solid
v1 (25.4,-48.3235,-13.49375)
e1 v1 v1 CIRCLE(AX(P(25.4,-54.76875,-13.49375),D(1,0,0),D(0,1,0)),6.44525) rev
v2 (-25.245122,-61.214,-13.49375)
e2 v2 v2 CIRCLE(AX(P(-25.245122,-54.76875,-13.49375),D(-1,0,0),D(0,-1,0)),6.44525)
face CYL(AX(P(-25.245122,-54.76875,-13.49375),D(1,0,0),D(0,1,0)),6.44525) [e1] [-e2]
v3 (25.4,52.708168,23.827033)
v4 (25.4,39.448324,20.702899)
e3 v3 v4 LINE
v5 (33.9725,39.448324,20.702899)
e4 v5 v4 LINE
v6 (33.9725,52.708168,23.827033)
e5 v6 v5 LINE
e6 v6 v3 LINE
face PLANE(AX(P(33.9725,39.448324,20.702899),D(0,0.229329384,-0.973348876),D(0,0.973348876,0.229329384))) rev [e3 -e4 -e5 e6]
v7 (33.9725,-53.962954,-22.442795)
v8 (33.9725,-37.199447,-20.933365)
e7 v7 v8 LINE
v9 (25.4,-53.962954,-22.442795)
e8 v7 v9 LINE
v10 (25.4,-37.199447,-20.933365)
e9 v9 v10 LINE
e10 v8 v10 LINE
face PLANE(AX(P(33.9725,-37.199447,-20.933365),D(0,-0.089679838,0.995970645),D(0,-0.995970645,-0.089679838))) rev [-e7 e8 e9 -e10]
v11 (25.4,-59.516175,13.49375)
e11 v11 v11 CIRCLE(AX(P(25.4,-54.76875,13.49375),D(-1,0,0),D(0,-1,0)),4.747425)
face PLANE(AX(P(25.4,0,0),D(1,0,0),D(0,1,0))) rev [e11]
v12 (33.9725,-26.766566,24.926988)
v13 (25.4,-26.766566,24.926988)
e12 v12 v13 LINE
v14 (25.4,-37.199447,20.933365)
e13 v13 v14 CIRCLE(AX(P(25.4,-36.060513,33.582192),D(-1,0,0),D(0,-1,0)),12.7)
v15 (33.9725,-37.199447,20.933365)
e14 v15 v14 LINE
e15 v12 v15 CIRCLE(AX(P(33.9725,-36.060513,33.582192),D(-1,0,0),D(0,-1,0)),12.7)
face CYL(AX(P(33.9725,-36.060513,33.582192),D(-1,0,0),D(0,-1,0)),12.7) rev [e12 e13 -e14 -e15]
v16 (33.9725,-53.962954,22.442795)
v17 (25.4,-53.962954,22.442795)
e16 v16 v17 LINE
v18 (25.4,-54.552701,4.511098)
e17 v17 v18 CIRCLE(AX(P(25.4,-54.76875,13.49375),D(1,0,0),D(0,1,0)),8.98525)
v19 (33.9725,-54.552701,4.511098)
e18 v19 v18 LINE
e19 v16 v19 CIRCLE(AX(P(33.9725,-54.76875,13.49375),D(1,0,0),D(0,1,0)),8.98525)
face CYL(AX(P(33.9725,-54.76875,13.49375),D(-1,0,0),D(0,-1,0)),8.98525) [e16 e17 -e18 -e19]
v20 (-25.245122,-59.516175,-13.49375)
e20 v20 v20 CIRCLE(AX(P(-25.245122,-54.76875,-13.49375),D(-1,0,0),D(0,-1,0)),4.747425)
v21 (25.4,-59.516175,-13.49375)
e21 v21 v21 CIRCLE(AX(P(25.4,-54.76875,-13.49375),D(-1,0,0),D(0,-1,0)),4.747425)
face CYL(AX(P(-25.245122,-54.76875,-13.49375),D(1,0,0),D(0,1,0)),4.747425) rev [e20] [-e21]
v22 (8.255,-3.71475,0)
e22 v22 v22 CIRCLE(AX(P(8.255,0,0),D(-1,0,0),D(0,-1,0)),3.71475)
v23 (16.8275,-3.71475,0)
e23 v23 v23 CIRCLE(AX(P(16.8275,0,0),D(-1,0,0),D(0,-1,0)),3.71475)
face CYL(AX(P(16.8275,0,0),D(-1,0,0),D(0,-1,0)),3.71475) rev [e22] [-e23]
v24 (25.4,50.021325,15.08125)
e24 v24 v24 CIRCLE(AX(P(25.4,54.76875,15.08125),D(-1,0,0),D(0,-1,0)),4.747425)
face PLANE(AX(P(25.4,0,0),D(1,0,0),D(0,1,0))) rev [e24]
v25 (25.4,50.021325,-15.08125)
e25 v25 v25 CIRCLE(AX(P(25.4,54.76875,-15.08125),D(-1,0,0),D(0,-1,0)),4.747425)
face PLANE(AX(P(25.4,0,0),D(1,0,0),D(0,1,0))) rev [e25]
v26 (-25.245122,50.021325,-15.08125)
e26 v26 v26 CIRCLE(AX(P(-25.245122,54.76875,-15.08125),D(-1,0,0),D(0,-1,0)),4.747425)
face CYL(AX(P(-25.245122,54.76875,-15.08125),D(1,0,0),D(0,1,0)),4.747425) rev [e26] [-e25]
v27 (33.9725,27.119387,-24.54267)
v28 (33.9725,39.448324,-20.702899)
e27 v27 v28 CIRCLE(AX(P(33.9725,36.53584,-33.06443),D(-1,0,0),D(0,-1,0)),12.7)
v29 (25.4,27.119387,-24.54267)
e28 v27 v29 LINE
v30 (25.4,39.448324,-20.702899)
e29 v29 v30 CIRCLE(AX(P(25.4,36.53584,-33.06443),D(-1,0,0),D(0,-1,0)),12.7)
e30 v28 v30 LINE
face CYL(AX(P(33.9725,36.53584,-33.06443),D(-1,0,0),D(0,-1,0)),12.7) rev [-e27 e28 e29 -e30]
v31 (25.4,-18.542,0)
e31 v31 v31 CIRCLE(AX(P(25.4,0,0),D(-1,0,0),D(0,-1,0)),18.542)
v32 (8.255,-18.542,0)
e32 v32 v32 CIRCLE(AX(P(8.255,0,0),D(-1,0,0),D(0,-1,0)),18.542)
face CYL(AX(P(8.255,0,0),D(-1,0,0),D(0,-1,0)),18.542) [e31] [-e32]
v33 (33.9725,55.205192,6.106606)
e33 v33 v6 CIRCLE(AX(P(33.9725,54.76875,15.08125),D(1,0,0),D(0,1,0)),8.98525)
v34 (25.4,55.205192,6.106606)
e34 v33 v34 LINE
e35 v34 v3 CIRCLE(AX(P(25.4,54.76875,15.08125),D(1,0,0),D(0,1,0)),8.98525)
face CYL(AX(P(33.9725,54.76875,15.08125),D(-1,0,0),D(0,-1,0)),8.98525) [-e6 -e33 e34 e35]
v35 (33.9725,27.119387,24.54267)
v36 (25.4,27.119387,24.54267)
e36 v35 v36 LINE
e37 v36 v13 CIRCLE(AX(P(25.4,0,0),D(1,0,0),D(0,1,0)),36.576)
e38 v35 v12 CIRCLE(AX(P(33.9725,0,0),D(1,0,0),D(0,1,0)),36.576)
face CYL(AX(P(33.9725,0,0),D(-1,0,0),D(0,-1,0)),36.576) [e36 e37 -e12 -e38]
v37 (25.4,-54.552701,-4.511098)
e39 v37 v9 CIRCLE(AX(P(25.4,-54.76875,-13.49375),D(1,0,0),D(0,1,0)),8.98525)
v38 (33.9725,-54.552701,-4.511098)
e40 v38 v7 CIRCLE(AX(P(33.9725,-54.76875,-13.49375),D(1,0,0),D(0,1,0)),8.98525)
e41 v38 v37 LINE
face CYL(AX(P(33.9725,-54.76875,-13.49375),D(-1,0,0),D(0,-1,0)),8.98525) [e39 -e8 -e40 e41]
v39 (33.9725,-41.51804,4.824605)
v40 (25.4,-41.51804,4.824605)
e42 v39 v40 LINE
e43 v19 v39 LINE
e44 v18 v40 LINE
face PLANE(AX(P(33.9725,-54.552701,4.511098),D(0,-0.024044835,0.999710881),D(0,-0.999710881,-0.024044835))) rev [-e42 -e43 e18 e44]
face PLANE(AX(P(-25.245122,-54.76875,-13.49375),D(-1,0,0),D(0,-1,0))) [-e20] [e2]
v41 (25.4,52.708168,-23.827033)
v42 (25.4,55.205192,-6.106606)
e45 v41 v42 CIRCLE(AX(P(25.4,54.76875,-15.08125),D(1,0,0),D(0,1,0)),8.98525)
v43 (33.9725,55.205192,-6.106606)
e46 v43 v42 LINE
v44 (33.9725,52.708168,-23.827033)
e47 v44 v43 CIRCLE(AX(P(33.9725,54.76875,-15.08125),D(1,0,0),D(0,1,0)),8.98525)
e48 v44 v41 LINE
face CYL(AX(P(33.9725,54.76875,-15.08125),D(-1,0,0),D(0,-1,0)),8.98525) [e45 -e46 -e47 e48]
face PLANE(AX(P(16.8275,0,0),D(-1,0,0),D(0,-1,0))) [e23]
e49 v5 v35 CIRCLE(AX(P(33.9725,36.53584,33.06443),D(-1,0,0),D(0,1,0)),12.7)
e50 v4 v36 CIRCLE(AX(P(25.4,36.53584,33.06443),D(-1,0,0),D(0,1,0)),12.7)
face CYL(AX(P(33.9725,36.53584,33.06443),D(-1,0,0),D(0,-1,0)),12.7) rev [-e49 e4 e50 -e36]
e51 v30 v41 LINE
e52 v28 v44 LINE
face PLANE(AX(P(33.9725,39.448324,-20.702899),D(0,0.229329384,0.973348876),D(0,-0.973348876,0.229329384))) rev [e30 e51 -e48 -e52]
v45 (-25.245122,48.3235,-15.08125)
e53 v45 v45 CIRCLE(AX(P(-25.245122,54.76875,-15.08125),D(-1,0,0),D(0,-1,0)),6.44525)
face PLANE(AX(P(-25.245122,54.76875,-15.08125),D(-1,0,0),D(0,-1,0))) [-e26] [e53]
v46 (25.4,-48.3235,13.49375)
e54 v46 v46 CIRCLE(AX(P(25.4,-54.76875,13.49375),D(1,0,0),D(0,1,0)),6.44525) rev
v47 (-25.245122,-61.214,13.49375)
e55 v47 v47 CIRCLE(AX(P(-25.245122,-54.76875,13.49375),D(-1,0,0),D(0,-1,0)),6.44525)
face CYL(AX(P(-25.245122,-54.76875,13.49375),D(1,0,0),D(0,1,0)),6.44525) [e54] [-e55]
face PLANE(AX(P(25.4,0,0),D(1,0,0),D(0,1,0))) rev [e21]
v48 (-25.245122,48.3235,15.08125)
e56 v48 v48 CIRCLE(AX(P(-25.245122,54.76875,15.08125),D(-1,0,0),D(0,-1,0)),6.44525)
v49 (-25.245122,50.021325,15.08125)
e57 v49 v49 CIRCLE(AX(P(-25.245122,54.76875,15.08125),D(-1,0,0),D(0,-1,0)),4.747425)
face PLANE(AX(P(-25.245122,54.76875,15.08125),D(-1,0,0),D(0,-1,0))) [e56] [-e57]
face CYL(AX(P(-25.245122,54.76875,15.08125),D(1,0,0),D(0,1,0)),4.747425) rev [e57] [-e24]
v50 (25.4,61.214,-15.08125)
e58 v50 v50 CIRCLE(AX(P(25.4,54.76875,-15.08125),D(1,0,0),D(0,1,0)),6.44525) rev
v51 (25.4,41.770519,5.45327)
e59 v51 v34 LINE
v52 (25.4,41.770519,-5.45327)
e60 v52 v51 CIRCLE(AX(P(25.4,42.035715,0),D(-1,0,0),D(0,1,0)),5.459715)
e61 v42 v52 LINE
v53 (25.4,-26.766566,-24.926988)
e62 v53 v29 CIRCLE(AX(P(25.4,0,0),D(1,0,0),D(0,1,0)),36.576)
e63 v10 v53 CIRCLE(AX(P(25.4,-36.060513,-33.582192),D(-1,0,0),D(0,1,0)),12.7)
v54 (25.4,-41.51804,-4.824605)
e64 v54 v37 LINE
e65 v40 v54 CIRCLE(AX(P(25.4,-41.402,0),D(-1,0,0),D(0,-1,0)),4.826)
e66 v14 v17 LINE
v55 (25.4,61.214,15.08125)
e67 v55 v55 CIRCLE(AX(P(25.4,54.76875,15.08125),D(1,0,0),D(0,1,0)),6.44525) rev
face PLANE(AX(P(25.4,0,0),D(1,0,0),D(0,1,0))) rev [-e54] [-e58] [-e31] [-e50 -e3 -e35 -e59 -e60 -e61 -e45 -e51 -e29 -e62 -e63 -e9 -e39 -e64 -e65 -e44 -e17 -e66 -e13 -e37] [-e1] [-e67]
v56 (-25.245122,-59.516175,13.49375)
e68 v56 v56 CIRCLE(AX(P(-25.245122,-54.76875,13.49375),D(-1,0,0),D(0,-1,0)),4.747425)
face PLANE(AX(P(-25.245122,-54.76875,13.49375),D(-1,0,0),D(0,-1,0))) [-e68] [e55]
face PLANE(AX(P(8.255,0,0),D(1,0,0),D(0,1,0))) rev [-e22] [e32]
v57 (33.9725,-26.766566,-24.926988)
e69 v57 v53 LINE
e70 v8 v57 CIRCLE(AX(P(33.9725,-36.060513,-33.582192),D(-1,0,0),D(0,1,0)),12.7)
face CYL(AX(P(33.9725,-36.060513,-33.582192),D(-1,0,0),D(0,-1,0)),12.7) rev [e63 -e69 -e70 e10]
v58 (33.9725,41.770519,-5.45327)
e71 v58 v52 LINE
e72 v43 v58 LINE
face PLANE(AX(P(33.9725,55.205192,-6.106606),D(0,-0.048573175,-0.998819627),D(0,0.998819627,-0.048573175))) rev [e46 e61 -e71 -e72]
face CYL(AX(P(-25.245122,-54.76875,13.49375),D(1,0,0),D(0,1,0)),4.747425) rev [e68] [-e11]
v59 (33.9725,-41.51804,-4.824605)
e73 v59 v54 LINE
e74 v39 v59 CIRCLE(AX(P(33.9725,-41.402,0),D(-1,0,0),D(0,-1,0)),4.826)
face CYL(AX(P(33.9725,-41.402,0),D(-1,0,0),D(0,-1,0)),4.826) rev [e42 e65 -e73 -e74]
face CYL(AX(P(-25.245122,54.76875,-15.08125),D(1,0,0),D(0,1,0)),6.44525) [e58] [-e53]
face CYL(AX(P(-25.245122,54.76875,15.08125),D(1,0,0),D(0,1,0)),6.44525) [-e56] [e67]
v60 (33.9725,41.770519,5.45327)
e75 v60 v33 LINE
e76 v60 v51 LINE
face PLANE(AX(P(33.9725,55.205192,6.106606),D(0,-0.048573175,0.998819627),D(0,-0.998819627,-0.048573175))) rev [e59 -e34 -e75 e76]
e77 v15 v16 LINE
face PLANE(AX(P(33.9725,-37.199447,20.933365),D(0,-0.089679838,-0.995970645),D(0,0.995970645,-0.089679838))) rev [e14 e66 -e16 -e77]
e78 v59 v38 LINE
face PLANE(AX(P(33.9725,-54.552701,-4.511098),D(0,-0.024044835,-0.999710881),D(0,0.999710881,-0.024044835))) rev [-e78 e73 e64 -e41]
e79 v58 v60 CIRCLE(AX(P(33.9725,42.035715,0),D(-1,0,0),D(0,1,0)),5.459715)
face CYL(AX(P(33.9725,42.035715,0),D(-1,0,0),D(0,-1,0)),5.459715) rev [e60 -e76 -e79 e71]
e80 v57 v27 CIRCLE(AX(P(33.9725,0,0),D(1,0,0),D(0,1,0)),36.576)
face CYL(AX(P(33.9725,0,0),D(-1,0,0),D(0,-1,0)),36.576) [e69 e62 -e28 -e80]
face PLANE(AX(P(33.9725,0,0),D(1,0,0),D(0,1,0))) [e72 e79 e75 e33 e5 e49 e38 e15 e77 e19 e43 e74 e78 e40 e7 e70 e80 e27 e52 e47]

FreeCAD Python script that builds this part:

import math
import FreeCAD as App
import Part
import Sketcher

V = App.Vector
Q = App.Units.Quantity

doc = App.newDocument("Part")
params = doc.addObject("Spreadsheet::Sheet", "Params")
for row, (alias, value) in enumerate([
    ("sketch1_height", "0.73 in"),
    ("sketch1_width", "0.675 in"),
    ("revolution_angle", "360 deg"),
    ("pocket1_length", "0.3375 in"),
    ("sketch3_radius", "0.5 in"),
    ("sketch3_radius2", "1.44 in"),
    ("sketch3_radius3", "0.19 in"),
    ("pad1_length", "0.3375 in"),
    ("pad2_length", "50.645122 mm"),
], start=1):
    params.set(f"A{row}", alias)
    params.set(f"B{row}", "=" + value)
    params.setAlias(f"B{row}", alias)

body = doc.addObject("PartDesign::Body", "Body")

# Sketch on XY plane
sketch1 = body.newObject("Sketcher::SketchObject", "Sketch")
sketch1.AttachmentSupport = (doc.getObject("XY_Plane"), [""])
sketch1.MapMode = "FlatFace"
sketch1.addGeometry([
    Part.LineSegment(V(8, 19, 0), V(8, 0, 0)),
    Part.LineSegment(V(8, 0, 0), V(25, 0, 0)),
    Part.LineSegment(V(25, 0, 0), V(25, 19, 0)),
    Part.LineSegment(V(25, 19, 0), V(8, 19, 0)),
], False)
sketch1.addConstraint([
    Sketcher.Constraint("Coincident", 0, 2, 1, 1),
    Sketcher.Constraint("Coincident", 1, 2, 2, 1),
    Sketcher.Constraint("Coincident", 2, 2, 3, 1),
    Sketcher.Constraint("Coincident", 3, 2, 0, 1),
    Sketcher.Constraint("Vertical", 0),
    Sketcher.Constraint("Horizontal", 1),
    Sketcher.Constraint("Vertical", 2),
    Sketcher.Constraint("Horizontal", 3),
    Sketcher.Constraint("PointOnObject", 0, 2, -1),
    Sketcher.Constraint("DistanceX", -1, 1, 1, 2, Q("1 in")),
    Sketcher.Constraint("DistanceY", 0, 2, 0, 1, Q("0.73 in")),
    Sketcher.Constraint("DistanceX", 1, 1, 1, 2, Q("0.675 in")),
])
sketch1.setExpression("Constraints[10]", "Params.sketch1_height")
sketch1.setExpression("Constraints[11]", "Params.sketch1_width")
revolution = body.newObject("PartDesign::Revolution", "Revolution")
revolution.Profile = sketch1
revolution.ReferenceAxis = (sketch1, ["H_Axis"])
revolution.setExpression("Angle", "Params.revolution_angle")

# Sketch on YZ plane
sketch2 = body.newObject("Sketcher::SketchObject", "Sketch001")
sketch2.AttachmentSupport = (doc.getObject("YZ_Plane"), [""])
sketch2.MapMode = "FlatFace"
sketch2.AttachmentOffset = App.Placement(V(0, 0, 0.325 * 25.4), App.Rotation())
sketch2.addGeometry(Part.Circle(V(0, 0, 0), V(0, 0, 1), 3.7), False)
sketch2.addConstraint([
    Sketcher.Constraint("Coincident", 0, 3, -1, 1),
    Sketcher.Constraint("Diameter", 0, Q("0.2925 in")),
])
pocket1 = body.newObject("PartDesign::Pocket", "Pocket")
pocket1.Profile = sketch2
pocket1.setExpression("Length", "Params.pocket1_length")
pocket1.Reversed = True

# Sketch on YZ plane
sketch3 = body.newObject("Sketcher::SketchObject", "Sketch002")
sketch3.AttachmentSupport = (doc.getObject("YZ_Plane"), [""])
sketch3.MapMode = "FlatFace"
sketch3.AttachmentOffset = App.Placement(V(0, 0, 1 * 25.4), App.Rotation())
sketch3.addGeometry([
    Part.LineSegment(V(52.7, 23.8, 0), V(39.4, 20.7, 0)),  # 0
    Part.ArcOfCircle(Part.Circle(V(36.5, 33.1, 0), V(0, 0, 1), 12.7), math.radians(-138), math.radians(-77)),  # 1
    Part.ArcOfCircle(Part.Circle(V(0, 0, 0), V(0, 0, 1), 36.6), math.radians(42), math.radians(137)),  # 2
    Part.ArcOfCircle(Part.Circle(V(-36.1, 33.6, 0), V(0, 0, 1), 12.7), math.radians(-95), math.radians(-43)),  # 3
    Part.LineSegment(V(-37.2, 20.9, 0), V(-54, 22.4, 0)),  # 4
    Part.ArcOfCircle(Part.Circle(V(-54.8, 13.5, 0), V(0, 0, 1), 9), math.radians(85), math.radians(271)),  # 5
    Part.LineSegment(V(-54.6, 4.5, 0), V(-41.5, 4.8, 0)),  # 6
    Part.ArcOfCircle(Part.Circle(V(-41.4, 0, 0), V(0, 0, 1), 4.8), math.radians(-91), math.radians(91)),  # 7
    Part.LineSegment(V(-41.5, -4.8, 0), V(-54.6, -4.5, 0)),  # 8
    Part.ArcOfCircle(Part.Circle(V(-54.8, -13.5, 0), V(0, 0, 1), 9), math.radians(89), math.radians(275)),  # 9
    Part.LineSegment(V(-54, -22.4, 0), V(-37.2, -20.9, 0)),  # 10
    Part.ArcOfCircle(Part.Circle(V(-36.1, -33.6, 0), V(0, 0, 1), 12.7), math.radians(43), math.radians(95)),  # 11
    Part.ArcOfCircle(Part.Circle(V(0, 0, 0), V(0, 0, 1), 36.6), math.radians(-137), math.radians(-42)),  # 12
    Part.ArcOfCircle(Part.Circle(V(36.5, -33.1, 0), V(0, 0, 1), 12.7), math.radians(77), math.radians(138)),  # 13
    Part.LineSegment(V(39.4, -20.7, 0), V(52.7, -23.8, 0)),  # 14
    Part.ArcOfCircle(Part.Circle(V(54.8, -15.1, 0), V(0, 0, 1), 9), math.radians(-103), math.radians(87)),  # 15
    Part.LineSegment(V(55.2, -6.1, 0), V(41.8, -5.5, 0)),  # 16
    Part.ArcOfCircle(Part.Circle(V(42, 0, 0), V(0, 0, 1), 5.5), math.radians(93), math.radians(267)),  # 17
    Part.LineSegment(V(41.8, 5.5, 0), V(55.2, 6.1, 0)),  # 18
    Part.ArcOfCircle(Part.Circle(V(54.8, 15.1, 0), V(0, 0, 1), 9), math.radians(-87), math.radians(103)),  # 19
], False)
sketch3.addConstraint([
    Sketcher.Constraint("Tangent", 0, 2, 1, 2),
    Sketcher.Constraint("Tangent", 1, 1, 2, 1),
    Sketcher.Constraint("Tangent", 2, 2, 3, 2),
    Sketcher.Constraint("Tangent", 3, 1, 4, 1),
    Sketcher.Constraint("Tangent", 4, 2, 5, 1),
    Sketcher.Constraint("Tangent", 5, 2, 6, 1),
    Sketcher.Constraint("Tangent", 6, 2, 7, 2),
    Sketcher.Constraint("Tangent", 7, 1, 8, 1),
    Sketcher.Constraint("Tangent", 8, 2, 9, 1),
    Sketcher.Constraint("Tangent", 9, 2, 10, 1),
    Sketcher.Constraint("Tangent", 10, 2, 11, 2),
    Sketcher.Constraint("Tangent", 11, 1, 12, 1),
    Sketcher.Constraint("Tangent", 12, 2, 13, 2),
    Sketcher.Constraint("Tangent", 13, 1, 14, 1),
    Sketcher.Constraint("Tangent", 14, 2, 15, 1),
    Sketcher.Constraint("Tangent", 15, 2, 16, 1),
    Sketcher.Constraint("Tangent", 16, 2, 17, 2),
    Sketcher.Constraint("Tangent", 17, 1, 18, 1),
    Sketcher.Constraint("Tangent", 18, 2, 19, 1),
    Sketcher.Constraint("Tangent", 19, 2, 0, 1),
    Sketcher.Constraint("Coincident", 2, 3, -1, 1),
    Sketcher.Constraint("Coincident", 12, 3, -1, 1),
    Sketcher.Constraint("Equal", 1, 3),
    Sketcher.Constraint("Equal", 5, 9),
    Sketcher.Constraint("Equal", 3, 11),
    Sketcher.Constraint("Equal", 2, 12),
    Sketcher.Constraint("Equal", 11, 13),
    Sketcher.Constraint("Equal", 9, 15),
    Sketcher.Constraint("Equal", 15, 19),
    Sketcher.Constraint("Symmetric", 5, 3, 9, 3, -1),
    Sketcher.Constraint("Symmetric", 15, 3, 19, 3, -1),
    Sketcher.Constraint("PointOnObject", 7, 3, -1),
    Sketcher.Constraint("PointOnObject", 17, 3, -1),
    Sketcher.Constraint("Vertical", 3, 3, 11, 3),
    Sketcher.Constraint("Vertical", 1, 3, 13, 3),
    Sketcher.Constraint("Radius", 1, Q("0.5 in")),
    Sketcher.Constraint("Radius", 2, Q("1.44 in")),
    Sketcher.Constraint("Radius", 7, Q("0.19 in")),
    Sketcher.Constraint("DistanceX", 7, 3, -1, 1, Q("1.63 in")),
    Sketcher.Constraint("DistanceX", 5, 3, -1, 1, Q("2.15625 in")),
    Sketcher.Constraint("DistanceY", -1, 1, 5, 3, Q("0.53125 in")),
    Sketcher.Constraint("DistanceX", -1, 1, 15, 3, Q("2.15625 in")),
    Sketcher.Constraint("DistanceY", 15, 3, -1, 1, Q("0.59375 in")),
    Sketcher.Constraint("Radius", 5, 8.98525),
    Sketcher.Constraint("Radius", 17, 5.459715),
    Sketcher.Constraint("DistanceY", -1, 1, 0, 2, 20.702899),
    Sketcher.Constraint("Distance", 16, 13.45055),
    Sketcher.Constraint("DistanceY", -1, 1, 3, 3, 33.582192),
])
sketch3.setExpression("Constraints[35]", "Params.sketch3_radius")
sketch3.setExpression("Constraints[36]", "Params.sketch3_radius2")
sketch3.setExpression("Constraints[37]", "Params.sketch3_radius3")
pad1 = body.newObject("PartDesign::Pad", "Pad")
pad1.Profile = sketch3
pad1.setExpression("Length", "Params.pad1_length")

# Sketch on YZ plane
sketch4 = body.newObject("Sketcher::SketchObject", "Sketch003")
sketch4.AttachmentSupport = (doc.getObject("YZ_Plane"), [""])
sketch4.MapMode = "FlatFace"
sketch4.AttachmentOffset = App.Placement(V(0, 0, 1 * 25.4), App.Rotation())
sketch4.addGeometry([
    Part.Circle(V(54.8, -15.1, 0), V(0, 0, 1), 6.4),  # 0
    Part.Circle(V(54.8, -15.1, 0), V(0, 0, 1), 4.7),  # 1
    Part.Circle(V(54.8, 15.1, 0), V(0, 0, 1), 6.4),  # 2
    Part.Circle(V(54.8, 15.1, 0), V(0, 0, 1), 4.7),  # 3
    Part.Circle(V(-54.8, 13.5, 0), V(0, 0, 1), 6.4),  # 4
    Part.Circle(V(-54.8, 13.5, 0), V(0, 0, 1), 4.7),  # 5
    Part.Circle(V(-54.8, -13.5, 0), V(0, 0, 1), 6.4),  # 6
    Part.Circle(V(-54.8, -13.5, 0), V(0, 0, 1), 4.7),  # 7
], False)
sketch4.addConstraint([
    Sketcher.Constraint("Coincident", 1, 3, 0, 3),
    Sketcher.Constraint("Coincident", 3, 3, 2, 3),
    Sketcher.Constraint("Coincident", 5, 3, 4, 3),
    Sketcher.Constraint("Coincident", 7, 3, 6, 3),
    Sketcher.Constraint("Equal", 0, 2),
    Sketcher.Constraint("Equal", 1, 3),
    Sketcher.Constraint("Equal", 2, 4),
    Sketcher.Constraint("Equal", 3, 5),
    Sketcher.Constraint("Equal", 4, 6),
    Sketcher.Constraint("Equal", 5, 7),
    Sketcher.Constraint("Symmetric", 0, 3, 2, 3, -1),
    Sketcher.Constraint("Symmetric", 4, 3, 6, 3, -1),
    Sketcher.Constraint("Diameter", 0, Q("0.5075 in")),
    Sketcher.Constraint("Diameter", 1, 9.49485),
    Sketcher.Constraint("DistanceX", -1, 1, 0, 3, Q("2.15625 in")),
    Sketcher.Constraint("DistanceY", 0, 3, -1, 1, Q("0.59375 in")),
    Sketcher.Constraint("DistanceX", 4, 3, -1, 1, Q("2.15625 in")),
    Sketcher.Constraint("DistanceY", -1, 1, 4, 3, Q("0.53125 in")),
])
pad2 = body.newObject("PartDesign::Pad", "Pad001")
pad2.Profile = sketch4
pad2.setExpression("Length", "Params.pad2_length")
pad2.Reversed = True

doc.recompute()
